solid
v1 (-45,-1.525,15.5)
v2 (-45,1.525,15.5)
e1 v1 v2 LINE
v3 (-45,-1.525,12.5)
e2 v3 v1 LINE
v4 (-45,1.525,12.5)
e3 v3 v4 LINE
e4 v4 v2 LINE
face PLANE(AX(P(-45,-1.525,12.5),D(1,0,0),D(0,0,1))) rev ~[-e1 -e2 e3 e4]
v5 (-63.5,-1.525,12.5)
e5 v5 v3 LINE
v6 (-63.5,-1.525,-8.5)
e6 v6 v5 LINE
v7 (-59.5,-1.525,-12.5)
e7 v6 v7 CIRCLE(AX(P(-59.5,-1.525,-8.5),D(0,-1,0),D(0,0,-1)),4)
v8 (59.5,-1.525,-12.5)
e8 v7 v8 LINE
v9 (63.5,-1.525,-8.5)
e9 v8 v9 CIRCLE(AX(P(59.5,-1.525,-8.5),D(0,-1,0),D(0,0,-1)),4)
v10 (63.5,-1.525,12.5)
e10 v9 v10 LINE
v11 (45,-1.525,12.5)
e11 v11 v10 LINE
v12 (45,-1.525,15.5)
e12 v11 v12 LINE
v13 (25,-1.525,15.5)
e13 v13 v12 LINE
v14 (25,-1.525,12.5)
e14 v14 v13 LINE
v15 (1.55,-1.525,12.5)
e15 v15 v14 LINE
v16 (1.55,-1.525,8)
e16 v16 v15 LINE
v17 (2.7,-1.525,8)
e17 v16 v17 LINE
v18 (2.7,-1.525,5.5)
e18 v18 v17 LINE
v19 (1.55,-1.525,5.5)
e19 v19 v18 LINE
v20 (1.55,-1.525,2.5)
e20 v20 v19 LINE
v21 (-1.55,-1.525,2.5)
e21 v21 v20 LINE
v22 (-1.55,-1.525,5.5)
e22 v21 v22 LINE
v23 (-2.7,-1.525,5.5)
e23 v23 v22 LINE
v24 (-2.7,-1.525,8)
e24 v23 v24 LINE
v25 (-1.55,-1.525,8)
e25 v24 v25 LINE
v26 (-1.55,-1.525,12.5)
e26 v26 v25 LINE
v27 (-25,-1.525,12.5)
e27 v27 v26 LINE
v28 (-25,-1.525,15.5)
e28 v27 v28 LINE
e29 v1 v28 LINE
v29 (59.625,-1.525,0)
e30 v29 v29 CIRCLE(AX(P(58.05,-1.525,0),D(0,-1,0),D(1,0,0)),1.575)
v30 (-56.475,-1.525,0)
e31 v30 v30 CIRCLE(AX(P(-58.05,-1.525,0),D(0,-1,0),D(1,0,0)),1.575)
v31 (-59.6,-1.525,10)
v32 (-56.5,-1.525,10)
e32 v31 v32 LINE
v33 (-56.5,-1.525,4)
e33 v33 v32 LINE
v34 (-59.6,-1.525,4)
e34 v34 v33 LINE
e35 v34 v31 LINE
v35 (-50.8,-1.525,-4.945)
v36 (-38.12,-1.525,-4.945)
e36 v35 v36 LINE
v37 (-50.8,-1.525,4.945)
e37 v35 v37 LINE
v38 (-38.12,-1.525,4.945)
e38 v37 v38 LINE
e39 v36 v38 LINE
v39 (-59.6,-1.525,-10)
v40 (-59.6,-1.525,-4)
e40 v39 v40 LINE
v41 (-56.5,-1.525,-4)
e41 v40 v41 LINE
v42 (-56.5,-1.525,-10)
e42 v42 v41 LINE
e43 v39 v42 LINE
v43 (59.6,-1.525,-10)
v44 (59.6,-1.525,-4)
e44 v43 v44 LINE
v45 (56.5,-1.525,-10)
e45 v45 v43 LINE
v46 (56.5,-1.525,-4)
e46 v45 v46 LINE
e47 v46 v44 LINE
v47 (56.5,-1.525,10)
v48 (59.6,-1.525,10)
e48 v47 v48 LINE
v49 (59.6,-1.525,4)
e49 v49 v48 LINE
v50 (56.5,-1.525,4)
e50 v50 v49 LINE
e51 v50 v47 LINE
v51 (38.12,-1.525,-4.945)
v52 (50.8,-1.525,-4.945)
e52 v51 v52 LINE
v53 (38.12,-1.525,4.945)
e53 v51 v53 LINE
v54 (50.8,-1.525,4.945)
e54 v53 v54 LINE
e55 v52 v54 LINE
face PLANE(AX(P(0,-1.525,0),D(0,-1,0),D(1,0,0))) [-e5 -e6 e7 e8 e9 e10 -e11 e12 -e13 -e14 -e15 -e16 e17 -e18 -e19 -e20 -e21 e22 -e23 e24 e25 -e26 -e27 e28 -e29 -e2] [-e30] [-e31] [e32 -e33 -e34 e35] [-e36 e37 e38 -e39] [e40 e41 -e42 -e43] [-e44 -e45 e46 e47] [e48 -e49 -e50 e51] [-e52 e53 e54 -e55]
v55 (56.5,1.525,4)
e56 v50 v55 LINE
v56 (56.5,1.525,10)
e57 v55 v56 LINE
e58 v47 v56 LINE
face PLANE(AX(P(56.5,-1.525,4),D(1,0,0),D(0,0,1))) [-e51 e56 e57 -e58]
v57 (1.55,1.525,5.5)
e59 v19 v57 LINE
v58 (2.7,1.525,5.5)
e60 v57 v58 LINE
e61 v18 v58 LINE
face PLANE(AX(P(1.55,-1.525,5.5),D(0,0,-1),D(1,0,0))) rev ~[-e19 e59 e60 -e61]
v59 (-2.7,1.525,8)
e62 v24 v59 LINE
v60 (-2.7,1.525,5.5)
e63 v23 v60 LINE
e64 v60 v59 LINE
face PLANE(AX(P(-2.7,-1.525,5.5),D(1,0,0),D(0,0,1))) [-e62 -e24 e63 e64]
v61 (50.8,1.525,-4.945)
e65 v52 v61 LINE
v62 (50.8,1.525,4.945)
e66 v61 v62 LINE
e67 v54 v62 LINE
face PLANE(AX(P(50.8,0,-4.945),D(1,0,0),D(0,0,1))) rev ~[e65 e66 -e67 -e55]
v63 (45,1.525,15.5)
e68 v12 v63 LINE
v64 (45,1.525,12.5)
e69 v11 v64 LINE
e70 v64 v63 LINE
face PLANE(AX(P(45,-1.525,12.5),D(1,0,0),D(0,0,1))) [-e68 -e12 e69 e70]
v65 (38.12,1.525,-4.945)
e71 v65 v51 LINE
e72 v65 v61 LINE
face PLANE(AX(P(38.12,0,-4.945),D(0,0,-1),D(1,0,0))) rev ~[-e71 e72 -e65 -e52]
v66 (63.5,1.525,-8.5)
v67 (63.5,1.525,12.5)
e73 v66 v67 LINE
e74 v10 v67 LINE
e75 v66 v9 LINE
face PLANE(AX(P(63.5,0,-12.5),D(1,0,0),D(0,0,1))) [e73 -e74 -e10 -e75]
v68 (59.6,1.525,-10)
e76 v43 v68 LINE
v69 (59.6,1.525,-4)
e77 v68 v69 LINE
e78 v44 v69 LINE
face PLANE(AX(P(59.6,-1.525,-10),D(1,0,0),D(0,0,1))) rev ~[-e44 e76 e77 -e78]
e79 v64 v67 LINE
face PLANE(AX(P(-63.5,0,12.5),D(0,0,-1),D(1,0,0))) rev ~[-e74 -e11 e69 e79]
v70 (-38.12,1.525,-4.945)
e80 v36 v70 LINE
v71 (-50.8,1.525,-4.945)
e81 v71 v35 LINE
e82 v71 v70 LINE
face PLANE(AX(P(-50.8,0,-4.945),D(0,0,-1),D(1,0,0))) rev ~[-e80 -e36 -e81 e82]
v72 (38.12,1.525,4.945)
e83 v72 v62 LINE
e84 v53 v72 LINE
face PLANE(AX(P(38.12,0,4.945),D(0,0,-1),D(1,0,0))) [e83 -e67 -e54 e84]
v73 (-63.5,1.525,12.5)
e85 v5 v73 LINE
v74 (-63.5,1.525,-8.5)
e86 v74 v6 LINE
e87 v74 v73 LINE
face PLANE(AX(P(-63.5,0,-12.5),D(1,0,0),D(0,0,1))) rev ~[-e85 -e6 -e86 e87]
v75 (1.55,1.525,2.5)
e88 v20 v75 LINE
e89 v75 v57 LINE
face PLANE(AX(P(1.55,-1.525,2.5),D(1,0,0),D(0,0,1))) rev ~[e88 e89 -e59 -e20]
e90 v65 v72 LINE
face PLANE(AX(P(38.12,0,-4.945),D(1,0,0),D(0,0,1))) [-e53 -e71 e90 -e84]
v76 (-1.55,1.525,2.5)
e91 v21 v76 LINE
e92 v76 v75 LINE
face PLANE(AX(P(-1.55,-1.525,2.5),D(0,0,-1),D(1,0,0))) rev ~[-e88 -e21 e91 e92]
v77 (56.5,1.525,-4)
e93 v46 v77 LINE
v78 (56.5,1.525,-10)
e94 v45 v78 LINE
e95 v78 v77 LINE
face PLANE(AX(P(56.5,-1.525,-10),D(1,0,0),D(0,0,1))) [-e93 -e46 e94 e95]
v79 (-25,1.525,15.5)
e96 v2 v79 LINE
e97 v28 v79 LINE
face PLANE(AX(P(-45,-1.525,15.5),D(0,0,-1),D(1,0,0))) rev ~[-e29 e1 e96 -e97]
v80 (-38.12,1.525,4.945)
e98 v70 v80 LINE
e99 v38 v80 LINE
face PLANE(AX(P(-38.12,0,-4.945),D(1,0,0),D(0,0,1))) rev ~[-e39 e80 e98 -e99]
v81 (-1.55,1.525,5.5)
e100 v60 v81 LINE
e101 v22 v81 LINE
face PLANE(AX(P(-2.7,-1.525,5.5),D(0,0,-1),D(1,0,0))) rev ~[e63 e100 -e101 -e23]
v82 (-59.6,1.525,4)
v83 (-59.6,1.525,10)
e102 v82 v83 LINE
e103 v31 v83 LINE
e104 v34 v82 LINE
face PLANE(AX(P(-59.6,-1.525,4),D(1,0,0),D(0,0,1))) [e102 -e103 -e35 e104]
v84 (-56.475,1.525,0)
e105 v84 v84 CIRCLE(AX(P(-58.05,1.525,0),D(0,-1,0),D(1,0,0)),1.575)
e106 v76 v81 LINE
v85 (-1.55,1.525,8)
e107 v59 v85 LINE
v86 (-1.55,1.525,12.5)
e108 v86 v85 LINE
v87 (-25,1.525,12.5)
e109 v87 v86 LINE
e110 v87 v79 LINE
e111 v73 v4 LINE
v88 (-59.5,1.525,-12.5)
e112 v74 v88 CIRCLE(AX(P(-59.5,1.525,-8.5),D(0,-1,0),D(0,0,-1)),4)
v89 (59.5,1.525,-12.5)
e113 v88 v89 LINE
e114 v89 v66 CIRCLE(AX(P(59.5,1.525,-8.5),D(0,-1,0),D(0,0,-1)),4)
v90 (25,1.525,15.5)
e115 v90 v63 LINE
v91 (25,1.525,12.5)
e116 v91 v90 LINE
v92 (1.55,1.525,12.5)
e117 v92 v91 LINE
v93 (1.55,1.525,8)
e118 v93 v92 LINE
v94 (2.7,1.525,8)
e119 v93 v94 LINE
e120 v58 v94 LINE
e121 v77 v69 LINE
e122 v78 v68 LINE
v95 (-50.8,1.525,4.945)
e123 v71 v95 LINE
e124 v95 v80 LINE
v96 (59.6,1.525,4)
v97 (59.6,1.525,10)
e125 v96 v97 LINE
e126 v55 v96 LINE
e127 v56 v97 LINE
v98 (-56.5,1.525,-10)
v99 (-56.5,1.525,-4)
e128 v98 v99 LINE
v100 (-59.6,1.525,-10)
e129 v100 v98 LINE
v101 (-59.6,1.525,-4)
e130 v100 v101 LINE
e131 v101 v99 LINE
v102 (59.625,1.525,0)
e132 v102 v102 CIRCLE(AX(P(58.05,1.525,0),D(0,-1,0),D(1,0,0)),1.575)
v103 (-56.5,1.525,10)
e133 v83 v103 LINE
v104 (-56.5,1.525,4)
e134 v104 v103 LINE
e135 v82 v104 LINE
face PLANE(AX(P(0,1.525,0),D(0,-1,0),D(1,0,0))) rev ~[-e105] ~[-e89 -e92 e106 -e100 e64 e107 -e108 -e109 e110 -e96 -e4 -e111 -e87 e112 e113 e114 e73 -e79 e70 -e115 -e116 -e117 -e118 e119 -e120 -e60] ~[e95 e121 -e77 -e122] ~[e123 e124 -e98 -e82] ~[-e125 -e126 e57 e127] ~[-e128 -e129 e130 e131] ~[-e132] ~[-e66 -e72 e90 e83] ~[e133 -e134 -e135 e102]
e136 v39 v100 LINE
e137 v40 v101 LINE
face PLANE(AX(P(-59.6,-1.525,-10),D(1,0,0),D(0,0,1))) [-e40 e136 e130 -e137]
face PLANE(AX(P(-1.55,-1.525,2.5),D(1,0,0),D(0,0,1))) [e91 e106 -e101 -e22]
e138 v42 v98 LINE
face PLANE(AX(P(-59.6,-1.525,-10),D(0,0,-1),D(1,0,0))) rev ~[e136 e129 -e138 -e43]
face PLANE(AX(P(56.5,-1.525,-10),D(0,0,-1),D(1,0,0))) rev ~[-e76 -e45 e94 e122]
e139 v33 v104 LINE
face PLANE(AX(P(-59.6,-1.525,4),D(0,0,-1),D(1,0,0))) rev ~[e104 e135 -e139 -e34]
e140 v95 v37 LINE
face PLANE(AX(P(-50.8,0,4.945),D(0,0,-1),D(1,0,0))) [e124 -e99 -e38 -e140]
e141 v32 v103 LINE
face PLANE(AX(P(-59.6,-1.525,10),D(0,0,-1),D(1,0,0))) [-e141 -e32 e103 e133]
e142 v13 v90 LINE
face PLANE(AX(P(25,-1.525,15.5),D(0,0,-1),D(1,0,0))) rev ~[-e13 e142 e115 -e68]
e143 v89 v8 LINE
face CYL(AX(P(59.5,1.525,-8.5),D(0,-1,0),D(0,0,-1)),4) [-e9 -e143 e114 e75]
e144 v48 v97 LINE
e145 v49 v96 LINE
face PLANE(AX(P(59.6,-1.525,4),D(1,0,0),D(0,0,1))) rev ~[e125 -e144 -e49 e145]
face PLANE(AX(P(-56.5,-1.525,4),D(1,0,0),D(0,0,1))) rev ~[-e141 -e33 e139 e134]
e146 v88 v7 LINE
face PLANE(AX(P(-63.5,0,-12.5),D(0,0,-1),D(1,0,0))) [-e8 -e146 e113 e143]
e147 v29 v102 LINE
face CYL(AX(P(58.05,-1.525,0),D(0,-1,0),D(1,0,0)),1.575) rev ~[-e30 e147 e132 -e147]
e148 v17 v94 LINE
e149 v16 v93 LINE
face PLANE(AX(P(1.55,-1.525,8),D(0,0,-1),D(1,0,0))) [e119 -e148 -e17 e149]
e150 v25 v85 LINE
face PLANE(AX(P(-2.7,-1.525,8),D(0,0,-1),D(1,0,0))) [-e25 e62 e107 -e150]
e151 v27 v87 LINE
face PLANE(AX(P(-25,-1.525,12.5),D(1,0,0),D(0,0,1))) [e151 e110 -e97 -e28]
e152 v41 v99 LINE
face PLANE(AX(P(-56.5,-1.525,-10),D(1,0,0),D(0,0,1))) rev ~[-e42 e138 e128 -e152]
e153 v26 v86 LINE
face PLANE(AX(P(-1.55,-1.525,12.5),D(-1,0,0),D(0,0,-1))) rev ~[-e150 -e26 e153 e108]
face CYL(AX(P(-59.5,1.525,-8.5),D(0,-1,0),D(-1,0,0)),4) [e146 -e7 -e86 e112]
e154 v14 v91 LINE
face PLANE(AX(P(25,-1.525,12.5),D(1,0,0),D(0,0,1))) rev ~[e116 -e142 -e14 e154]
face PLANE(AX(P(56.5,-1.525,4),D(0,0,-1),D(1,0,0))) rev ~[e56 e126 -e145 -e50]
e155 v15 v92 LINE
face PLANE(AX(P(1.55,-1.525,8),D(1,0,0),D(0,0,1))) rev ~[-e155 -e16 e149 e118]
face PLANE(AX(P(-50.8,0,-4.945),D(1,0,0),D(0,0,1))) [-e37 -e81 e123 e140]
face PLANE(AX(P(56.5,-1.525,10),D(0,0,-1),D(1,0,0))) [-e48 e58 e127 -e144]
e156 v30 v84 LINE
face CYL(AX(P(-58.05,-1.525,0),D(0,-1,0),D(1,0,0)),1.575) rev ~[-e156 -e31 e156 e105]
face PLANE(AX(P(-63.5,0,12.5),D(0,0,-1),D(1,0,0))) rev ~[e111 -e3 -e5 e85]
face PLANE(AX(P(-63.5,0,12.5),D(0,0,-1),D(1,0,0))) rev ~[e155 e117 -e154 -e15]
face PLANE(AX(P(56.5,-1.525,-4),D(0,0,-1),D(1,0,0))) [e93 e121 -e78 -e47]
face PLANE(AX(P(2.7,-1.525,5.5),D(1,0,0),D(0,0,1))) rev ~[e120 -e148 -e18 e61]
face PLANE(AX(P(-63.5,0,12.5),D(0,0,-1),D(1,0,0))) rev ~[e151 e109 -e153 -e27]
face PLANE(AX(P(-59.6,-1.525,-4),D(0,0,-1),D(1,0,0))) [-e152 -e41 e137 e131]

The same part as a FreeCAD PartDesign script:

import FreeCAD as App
import Part
import Sketcher


def edges_at(feature, points):
    """Names of the edges that pass closest to the given points."""
    edges = feature.Shape.Edges
    near = lambda p: min(range(len(edges)), key=lambda i: edges[i].distToShape(Part.Vertex(*p))[0])
    return sorted({f"Edge{near(p) + 1}" for p in points})


def add_polygon(sketch, points):
    """Adds a closed chain of lines whose ends are joined by coincident constraints."""
    first, n = sketch.GeometryCount, len(points)
    for a, b in zip(points, points[1:] + points[:1]):
        sketch.addGeometry(Part.LineSegment(App.Vector(*a, 0), App.Vector(*b, 0)), False)
    for i in range(n):
        sketch.addConstraint(Sketcher.Constraint("Coincident", first + i, 2, first + (i + 1) % n, 1))

doc = App.newDocument("Part")
body = doc.addObject("PartDesign::Body", "Body")

# Sketch on XZ plane
sketch1 = body.newObject("Sketcher::SketchObject", "Sketch")
sketch1.AttachmentSupport = (doc.getObject("XZ_Plane"), [""])
sketch1.MapMode = "FlatFace"
add_polygon(sketch1, [(-64, 12), (-64, -12), (64, -12), (64, 12)])  # lines 0-3
add_polygon(sketch1, [(-38, -5), (-51, -5), (-51, 5), (-38, 5)])  # lines 4-7
add_polygon(sketch1, [(51, -5), (38, -5), (38, 5), (51, 5)])  # lines 8-11
sketch1.addConstraint([
    Sketcher.Constraint("Vertical", 0),
    Sketcher.Constraint("Horizontal", 1),
    Sketcher.Constraint("Vertical", 2),
    Sketcher.Constraint("Horizontal", 3),
    Sketcher.Constraint("Horizontal", 4),
    Sketcher.Constraint("Vertical", 5),
    Sketcher.Constraint("Horizontal", 6),
    Sketcher.Constraint("Vertical", 7),
    Sketcher.Constraint("Horizontal", 8),
    Sketcher.Constraint("Vertical", 9),
    Sketcher.Constraint("Horizontal", 10),
    Sketcher.Constraint("Vertical", 11),
    Sketcher.Constraint("Symmetric", 0, 2, 2, 2, -1, 1),
    Sketcher.Constraint("Symmetric", 6, 2, 8, 2, -1, 1),
    Sketcher.Constraint("Symmetric", 4, 2, 10, 2, -1, 1),
    Sketcher.Constraint("Horizontal", 7, 2, 8, 2),
    Sketcher.Constraint("DistanceX", 1, 1, 1, 2, 127.0),
    Sketcher.Constraint("DistanceY", 0, 2, 0, 1, 25.0),
    Sketcher.Constraint("DistanceX", 4, 2, 4, 1, 12.68),
    Sketcher.Constraint("DistanceY", 5, 1, 5, 2, 9.89),
    Sketcher.Constraint("DistanceX", 4, 2, -1, 1, 50.8),
])
pad1 = body.newObject("PartDesign::Pad", "Pad")
pad1.Profile = sketch1
pad1.Length = 3.05
pad1.Midplane = True

# Sketch on XZ plane
sketch2 = body.newObject("Sketcher::SketchObject", "Sketch001")
sketch2.AttachmentSupport = (doc.getObject("XZ_Plane"), [""])
sketch2.MapMode = "FlatFace"
sketch2.AttachmentOffset = App.Placement(App.Vector(0, 0, 1.525), App.Rotation())
add_polygon(sketch2, [(-45, 15.5), (-45, 12.5), (-25, 12.5), (-25, 15.5)])  # lines 0-3
add_polygon(sketch2, [(25, 15.5), (25, 12.5), (45, 12.5), (45, 15.5)])  # lines 4-7
sketch2.addConstraint([
    Sketcher.Constraint("Vertical", 0),
    Sketcher.Constraint("Horizontal", 1),
    Sketcher.Constraint("Vertical", 2),
    Sketcher.Constraint("Horizontal", 3),
    Sketcher.Constraint("Vertical", 4),
    Sketcher.Constraint("Horizontal", 5),
    Sketcher.Constraint("Vertical", 6),
    Sketcher.Constraint("Horizontal", 7),
    Sketcher.Constraint("Symmetric", 1, 2, 4, 2, -2),
    Sketcher.Constraint("Symmetric", 3, 2, 6, 2, -2),
    Sketcher.Constraint("DistanceX", 1, 1, 1, 2, 20.0),
    Sketcher.Constraint("DistanceY", 0, 2, 0, 1, 3.0),
    Sketcher.Constraint("DistanceX", 0, 2, -1, 1, 45.0),
    Sketcher.Constraint("DistanceY", -1, 1, 0, 2, 12.5),
])
pad2 = body.newObject("PartDesign::Pad", "Pad001")
pad2.Profile = sketch2
pad2.Length = 3.05
pad2.Reversed = True

# Sketch on XZ plane
sketch3 = body.newObject("Sketcher::SketchObject", "Sketch002")
sketch3.AttachmentSupport = (doc.getObject("XZ_Plane"), [""])
sketch3.MapMode = "FlatFace"
sketch3.AttachmentOffset = App.Placement(App.Vector(0, 0, 1.525), App.Rotation())
add_polygon(sketch3, [(-1.6, 12.5), (-1.6, 8), (-2.7, 8), (-2.7, 5.5), (-1.6, 5.5), (-1.6, 2.5), (1.6, 2.5), (1.6, 5.5), (2.7, 5.5), (2.7, 8), (1.6, 8), (1.6, 12.5)])  # lines 0-11
sketch3.addConstraint([
    Sketcher.Constraint("Vertical", 0),
    Sketcher.Constraint("Horizontal", 1),
    Sketcher.Constraint("Vertical", 2),
    Sketcher.Constraint("Horizontal", 3),
    Sketcher.Constraint("Vertical", 4),
    Sketcher.Constraint("Horizontal", 5),
    Sketcher.Constraint("Vertical", 6),
    Sketcher.Constraint("Horizontal", 7),
    Sketcher.Constraint("Vertical", 8),
    Sketcher.Constraint("Horizontal", 9),
    Sketcher.Constraint("Vertical", 10),
    Sketcher.Constraint("Horizontal", 11),
    Sketcher.Constraint("Symmetric", 3, 2, 6, 2, -2),
    Sketcher.Constraint("Symmetric", 1, 2, 8, 2, -2),
    Sketcher.Constraint("Vertical", 0, 2, 3, 2),
    Sketcher.Constraint("Vertical", 6, 2, 9, 2),
    Sketcher.Constraint("DistanceY", 4, 2, 4, 1, 3.0),
    Sketcher.Constraint("DistanceX", 5, 1, 5, 2, 3.1),
    Sketcher.Constraint("DistanceY", 0, 2, 0, 1, 4.5),
    Sketcher.Constraint("DistanceY", 2, 2, 2, 1, 2.5),
    Sketcher.Constraint("DistanceY", -1, 1, 0, 2, 8.0),
    Sketcher.Constraint("DistanceX", 1, 2, 1, 1, 1.15),
])
pocket1 = body.newObject("PartDesign::Pocket", "Pocket")
pocket1.Profile = sketch3
pocket1.Type = "ThroughAll"

# Sketch on XZ plane
sketch4 = body.newObject("Sketcher::SketchObject", "Sketch003")
sketch4.AttachmentSupport = (doc.getObject("XZ_Plane"), [""])
sketch4.MapMode = "FlatFace"
sketch4.AttachmentOffset = App.Placement(App.Vector(0, 0, 1.525), App.Rotation())
add_polygon(sketch4, [(-59.6, 10), (-59.6, 4), (-56.5, 4), (-56.5, 10)])  # lines 0-3
add_polygon(sketch4, [(-59.6, -4), (-59.6, -10), (-56.5, -10), (-56.5, -4)])  # lines 4-7
sketch4.addGeometry(Part.Circle(App.Vector(-58, 0, 0), App.Vector(0, 0, 1), 1.6), False)  # 8
add_polygon(sketch4, [(56.5, 10), (56.5, 4), (59.6, 4), (59.6, 10)])  # lines 9-12
add_polygon(sketch4, [(56.5, -4), (56.5, -10), (59.6, -10), (59.6, -4)])  # lines 13-16
sketch4.addGeometry(Part.Circle(App.Vector(58, 0, 0), App.Vector(0, 0, 1), 1.6), False)  # 17
sketch4.addConstraint([
    Sketcher.Constraint("Vertical", 0),
    Sketcher.Constraint("Horizontal", 1),
    Sketcher.Constraint("Vertical", 2),
    Sketcher.Constraint("Horizontal", 3),
    Sketcher.Constraint("Vertical", 4),
    Sketcher.Constraint("Horizontal", 5),
    Sketcher.Constraint("Vertical", 6),
    Sketcher.Constraint("Horizontal", 7),
    Sketcher.Constraint("Vertical", 9),
    Sketcher.Constraint("Horizontal", 10),
    Sketcher.Constraint("Vertical", 11),
    Sketcher.Constraint("Horizontal", 12),
    Sketcher.Constraint("Vertical", 13),
    Sketcher.Constraint("Horizontal", 14),
    Sketcher.Constraint("Vertical", 15),
    Sketcher.Constraint("Horizontal", 16),
    Sketcher.Constraint("Equal", 8, 17),
    Sketcher.Constraint("Symmetric", 8, 3, 17, 3, -1, 1),
    Sketcher.Constraint("Symmetric", 6, 2, 9, 2, -1, 1),
    Sketcher.Constraint("Symmetric", 4, 2, 11, 2, -1, 1),
    Sketcher.Constraint("Symmetric", 2, 2, 13, 2, -1, 1),
    Sketcher.Constraint("Symmetric", 0, 2, 15, 2, -1, 1),
    Sketcher.Constraint("Symmetric", 1, 2, 9, 2, -2),
    Sketcher.Constraint("Symmetric", 3, 2, 11, 2, -2),
    Sketcher.Constraint("PointOnObject", 8, 3, -1),
    Sketcher.Constraint("Diameter", 8, 3.15),
    Sketcher.Constraint("DistanceY", 0, 2, 0, 1, 6.0),
    Sketcher.Constraint("DistanceX", 1, 1, 1, 2, 3.1),
    Sketcher.Constraint("DistanceY", -1, 1, 0, 2, 4.0),
    Sketcher.Constraint("DistanceX", 1, 2, 9, 2, 113.0),
    Sketcher.Constraint("DistanceX", 8, 3, 17, 3, 116.1),
])
pocket2 = body.newObject("PartDesign::Pocket", "Pocket001")
pocket2.Profile = sketch4
pocket2.Type = "ThroughAll"
doc.recompute()

fillet = body.newObject("PartDesign::Fillet", "Fillet")
fillet.Base = (pocket2, edges_at(pocket2, [(-63.5, 0, -12.5), (63.5, 0, -12.5)]))
fillet.Radius = 4

doc.recompute()
